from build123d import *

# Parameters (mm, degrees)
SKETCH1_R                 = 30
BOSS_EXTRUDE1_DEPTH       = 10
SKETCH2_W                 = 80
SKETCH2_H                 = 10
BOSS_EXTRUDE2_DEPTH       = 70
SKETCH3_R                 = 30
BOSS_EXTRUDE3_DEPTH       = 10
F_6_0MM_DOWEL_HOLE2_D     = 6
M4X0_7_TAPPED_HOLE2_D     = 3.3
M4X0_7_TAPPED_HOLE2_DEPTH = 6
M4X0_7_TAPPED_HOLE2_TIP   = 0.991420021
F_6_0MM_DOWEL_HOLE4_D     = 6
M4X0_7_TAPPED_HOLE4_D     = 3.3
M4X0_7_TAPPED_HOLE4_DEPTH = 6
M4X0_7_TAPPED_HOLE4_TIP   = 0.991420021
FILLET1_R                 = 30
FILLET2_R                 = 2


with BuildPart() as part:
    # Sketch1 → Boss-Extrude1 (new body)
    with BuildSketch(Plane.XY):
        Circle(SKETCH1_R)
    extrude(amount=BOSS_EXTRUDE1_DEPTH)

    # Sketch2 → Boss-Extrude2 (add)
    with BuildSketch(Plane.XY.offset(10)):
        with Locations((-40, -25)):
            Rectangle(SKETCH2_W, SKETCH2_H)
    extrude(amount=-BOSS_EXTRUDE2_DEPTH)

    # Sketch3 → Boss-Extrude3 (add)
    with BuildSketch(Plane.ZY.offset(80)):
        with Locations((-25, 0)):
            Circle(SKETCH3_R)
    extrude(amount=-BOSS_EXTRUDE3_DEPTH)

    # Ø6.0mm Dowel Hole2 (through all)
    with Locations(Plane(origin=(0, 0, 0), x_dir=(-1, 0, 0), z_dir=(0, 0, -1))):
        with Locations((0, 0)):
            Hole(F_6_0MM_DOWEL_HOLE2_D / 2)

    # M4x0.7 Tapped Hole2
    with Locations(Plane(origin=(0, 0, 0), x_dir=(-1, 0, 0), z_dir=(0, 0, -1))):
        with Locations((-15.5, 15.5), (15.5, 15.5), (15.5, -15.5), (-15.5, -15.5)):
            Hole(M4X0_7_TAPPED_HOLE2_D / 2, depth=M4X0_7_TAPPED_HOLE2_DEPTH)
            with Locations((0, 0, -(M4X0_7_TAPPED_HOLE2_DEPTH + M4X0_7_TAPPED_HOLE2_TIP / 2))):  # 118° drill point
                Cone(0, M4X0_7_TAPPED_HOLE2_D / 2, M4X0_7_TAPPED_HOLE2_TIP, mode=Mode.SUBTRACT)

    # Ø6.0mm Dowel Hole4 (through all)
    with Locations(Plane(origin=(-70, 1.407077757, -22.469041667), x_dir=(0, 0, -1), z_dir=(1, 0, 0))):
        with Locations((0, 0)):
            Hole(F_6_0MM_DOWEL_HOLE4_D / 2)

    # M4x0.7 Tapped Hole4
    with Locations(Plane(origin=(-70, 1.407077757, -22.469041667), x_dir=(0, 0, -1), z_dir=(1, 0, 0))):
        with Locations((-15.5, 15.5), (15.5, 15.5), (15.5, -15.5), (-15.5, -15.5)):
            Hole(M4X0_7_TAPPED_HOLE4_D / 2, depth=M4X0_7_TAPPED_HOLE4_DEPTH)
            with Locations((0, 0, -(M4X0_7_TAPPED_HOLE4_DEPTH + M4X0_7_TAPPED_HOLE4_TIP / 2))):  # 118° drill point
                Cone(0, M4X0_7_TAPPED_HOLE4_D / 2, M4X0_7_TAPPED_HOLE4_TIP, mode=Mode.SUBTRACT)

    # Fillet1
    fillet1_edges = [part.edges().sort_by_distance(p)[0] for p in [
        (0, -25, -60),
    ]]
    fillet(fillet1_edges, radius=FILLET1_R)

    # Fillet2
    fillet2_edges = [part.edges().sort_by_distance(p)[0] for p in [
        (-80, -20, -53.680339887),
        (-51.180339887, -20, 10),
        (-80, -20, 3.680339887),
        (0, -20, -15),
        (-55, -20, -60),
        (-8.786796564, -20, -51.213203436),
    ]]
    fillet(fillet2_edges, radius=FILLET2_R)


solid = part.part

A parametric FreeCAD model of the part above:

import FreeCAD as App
import Part
import Sketcher

V = App.Vector


def edges_at(feature, points):
    """Names of the edges that pass closest to the given points."""
    edges = feature.Shape.Edges
    near = lambda p: min(range(len(edges)), key=lambda i: edges[i].distToShape(Part.Vertex(*p))[0])
    return sorted({f"Edge{near(p) + 1}" for p in points})


def add_polygon(sketch, points):
    """Adds a closed chain of lines whose ends are joined by coincident constraints."""
    first, n = sketch.GeometryCount, len(points)
    for a, b in zip(points, points[1:] + points[:1]):
        sketch.addGeometry(Part.LineSegment(App.Vector(*a, 0), App.Vector(*b, 0)), False)
    for i in range(n):
        sketch.addConstraint(Sketcher.Constraint("Coincident", first + i, 2, first + (i + 1) % n, 1))

doc = App.newDocument("Part")
params = doc.addObject("Spreadsheet::Sheet", "Params")
for row, (alias, value) in enumerate([
    ("sketch1_diameter", "60 mm"),
    ("pad1_length", "10 mm"),
    ("sketch2_width", "80 mm"),
    ("sketch2_height", "10 mm"),
    ("pad2_length", "70 mm"),
    ("sketch3_diameter", "60 mm"),
    ("pad3_length", "10 mm"),
    ("sketch4_diameter", "6 mm"),
    ("hole_diameter", "6 mm"),
    ("sketch5_diameter", "3.3 mm"),
    ("hole2_diameter", "3.3 mm"),
    ("hole2_depth", "6 mm"),
    ("sketch6_diameter", "6 mm"),
    ("hole3_diameter", "6 mm"),
    ("sketch7_diameter", "3.3 mm"),
    ("hole4_diameter", "3.3 mm"),
    ("hole4_depth", "6 mm"),
    ("fillet_radius", "30 mm"),
    ("fillet2_radius", "2 mm"),
], start=1):
    params.set(f"A{row}", alias)
    params.set(f"B{row}", "=" + value)
    params.setAlias(f"B{row}", alias)

body = doc.addObject("PartDesign::Body", "Body")

sketch1 = doc.addObject("Sketcher::SketchObject", "Sketch")
body.addObject(sketch1)
sketch1.AttachmentSupport = (doc.XY_Plane, [""])
sketch1.MapMode = "FlatFace"
sketch1.addGeometry(Part.Circle(V(0, 0, 0), V(0, 0, 1), 30), False)
sketch1.addConstraint(Sketcher.Constraint("Coincident", 0, 3, -1, 1))
sketch1.addConstraint(Sketcher.Constraint("Diameter", 0, 60.0))
sketch1.setExpression("Constraints[1]", "Params.sketch1_diameter")
pad1 = doc.addObject("PartDesign::Pad", "Pad")
body.addObject(pad1)
pad1.Profile = sketch1
pad1.setExpression("Length", "Params.pad1_length")

sketch2 = doc.addObject("Sketcher::SketchObject", "Sketch001")
body.addObject(sketch2)
sketch2.AttachmentSupport = (doc.XY_Plane, [""])
sketch2.MapMode = "FlatFace"
sketch2.AttachmentOffset = App.Placement(V(0, 0, 10), App.Rotation())
add_polygon(sketch2, [(-80, -20), (-80, -30), (0, -30), (0, -20)])
sketch2.addConstraint(Sketcher.Constraint("Vertical", 0))
sketch2.addConstraint(Sketcher.Constraint("Horizontal", 1))
sketch2.addConstraint(Sketcher.Constraint("Vertical", 2))
sketch2.addConstraint(Sketcher.Constraint("Horizontal", 3))
sketch2.addConstraint(Sketcher.Constraint("PointOnObject", 1, 2, -2))
sketch2.addConstraint(Sketcher.Constraint("DistanceX", 1, 1, 1, 2, 80.0))
sketch2.addConstraint(Sketcher.Constraint("DistanceY", 0, 2, 0, 1, 10.0))
sketch2.addConstraint(Sketcher.Constraint("DistanceY", 0, 2, -1, 1, 30.0))
sketch2.setExpression("Constraints[9]", "Params.sketch2_width")
sketch2.setExpression("Constraints[10]", "Params.sketch2_height")
pad2 = doc.addObject("PartDesign::Pad", "Pad001")
body.addObject(pad2)
pad2.Profile = sketch2
pad2.setExpression("Length", "Params.pad2_length")
pad2.Reversed = True

sketch3 = doc.addObject("Sketcher::SketchObject", "Sketch002")
body.addObject(sketch3)
sketch3.AttachmentSupport = (doc.YZ_Plane, [""])
sketch3.MapMode = "FlatFace"
sketch3.AttachmentOffset = App.Placement(V(0, 0, -80), App.Rotation())
sketch3.addGeometry(Part.Circle(V(0, -25, 0), V(0, 0, 1), 30), False)
sketch3.addConstraint(Sketcher.Constraint("PointOnObject", 0, 3, -2))
sketch3.addConstraint(Sketcher.Constraint("Diameter", 0, 60.0))
sketch3.addConstraint(Sketcher.Constraint("DistanceY", 0, 3, -1, 1, 25.0))
sketch3.setExpression("Constraints[1]", "Params.sketch3_diameter")
pad3 = doc.addObject("PartDesign::Pad", "Pad002")
body.addObject(pad3)
pad3.Profile = sketch3
pad3.setExpression("Length", "Params.pad3_length")

sketch4 = doc.addObject("Sketcher::SketchObject", "Sketch003")
body.addObject(sketch4)
sketch4.AttachmentSupport = (doc.XY_Plane, [""])
sketch4.MapMode = "FlatFace"
sketch4.addGeometry(Part.Circle(V(0, 0, 0), V(0, 0, 1), 3), False)
sketch4.addConstraint(Sketcher.Constraint("Coincident", 0, 3, -1, 1))
sketch4.addConstraint(Sketcher.Constraint("Diameter", 0, 6.0))
sketch4.setExpression("Constraints[1]", "Params.sketch4_diameter")
doc.recompute()
hole = doc.addObject("PartDesign::Hole", "Hole")
body.addObject(hole)
hole.Profile = sketch4
hole.ThreadType = "None"
hole.setExpression("Diameter", "Params.hole_diameter")
hole.DepthType = "ThroughAll"
hole.Reversed = True

sketch5 = doc.addObject("Sketcher::SketchObject", "Sketch004")
body.addObject(sketch5)
sketch5.AttachmentSupport = (doc.XY_Plane, [""])
sketch5.MapMode = "FlatFace"
sketch5.addGeometry(Part.Circle(V(15.5, 15.5, 0), V(0, 0, 1), 1.6), False)
sketch5.addGeometry(Part.Circle(V(-15.5, 15.5, 0), V(0, 0, 1), 1.6), False)
sketch5.addGeometry(Part.Circle(V(-15.5, -15.5, 0), V(0, 0, 1), 1.6), False)
sketch5.addGeometry(Part.Circle(V(15.5, -15.5, 0), V(0, 0, 1), 1.6), False)
sketch5.addConstraint(Sketcher.Constraint("Equal", 0, 1))
sketch5.addConstraint(Sketcher.Constraint("Equal", 1, 2))
sketch5.addConstraint(Sketcher.Constraint("Equal", 2, 3))
sketch5.addConstraint(Sketcher.Constraint("Symmetric", 0, 3, 2, 3, -1, 1))
sketch5.addConstraint(Sketcher.Constraint("Symmetric", 1, 3, 3, 3, -1, 1))
sketch5.addConstraint(Sketcher.Constraint("Symmetric", 0, 3, 1, 3, -2))
sketch5.addConstraint(Sketcher.Constraint("Diameter", 0, 3.3))
sketch5.addConstraint(Sketcher.Constraint("DistanceX", 1, 3, 0, 3, 31.0))
sketch5.addConstraint(Sketcher.Constraint("DistanceY", 2, 3, 1, 3, 31.0))
sketch5.setExpression("Constraints[6]", "Params.sketch5_diameter")
doc.recompute()
hole2 = doc.addObject("PartDesign::Hole", "Hole001")
body.addObject(hole2)
hole2.Profile = sketch5
hole2.ThreadType = "None"
hole2.setExpression("Diameter", "Params.hole2_diameter")
hole2.DepthType = "Dimension"
hole2.setExpression("Depth", "Params.hole2_depth")
hole2.DrillPoint = "Angled"
hole2.DrillPointAngle = 118
hole2.Reversed = True

sketch6 = doc.addObject("Sketcher::SketchObject", "Sketch005")
body.addObject(sketch6)
sketch6.AttachmentSupport = (doc.YZ_Plane, [""])
sketch6.MapMode = "FlatFace"
sketch6.AttachmentOffset = App.Placement(V(0, 0, -70), App.Rotation())
sketch6.addGeometry(Part.Circle(V(1.4, -22.5, 0), V(0, 0, 1), 3), False)
sketch6.addConstraint(Sketcher.Constraint("Diameter", 0, 6.0))
sketch6.addConstraint(Sketcher.Constraint("DistanceY", 0, 3, -1, 1, 22.469042))
sketch6.addConstraint(Sketcher.Constraint("DistanceX", -1, 1, 0, 3, 1.407078))
sketch6.setExpression("Constraints[0]", "Params.sketch6_diameter")
doc.recompute()
hole3 = doc.addObject("PartDesign::Hole", "Hole002")
body.addObject(hole3)
hole3.Profile = sketch6
hole3.ThreadType = "None"
hole3.setExpression("Diameter", "Params.hole3_diameter")
hole3.DepthType = "ThroughAll"

sketch7 = doc.addObject("Sketcher::SketchObject", "Sketch006")
body.addObject(sketch7)
sketch7.AttachmentSupport = (doc.YZ_Plane, [""])
sketch7.MapMode = "FlatFace"
sketch7.AttachmentOffset = App.Placement(V(0, 0, -70), App.Rotation())
sketch7.addGeometry(Part.Circle(V(16.9, -7, 0), V(0, 0, 1), 1.6), False)
sketch7.addGeometry(Part.Circle(V(16.9, -38, 0), V(0, 0, 1), 1.6), False)
sketch7.addGeometry(Part.Circle(V(-14.1, -38, 0), V(0, 0, 1), 1.6), False)
sketch7.addGeometry(Part.Circle(V(-14.1, -7, 0), V(0, 0, 1), 1.6), False)
sketch7.addConstraint(Sketcher.Constraint("Equal", 0, 1))
sketch7.addConstraint(Sketcher.Constraint("Equal", 1, 2))
sketch7.addConstraint(Sketcher.Constraint("Equal", 2, 3))
sketch7.addConstraint(Sketcher.Constraint("Horizontal", 1, 3, 2, 3))
sketch7.addConstraint(Sketcher.Constraint("Horizontal", 0, 3, 3, 3))
sketch7.addConstraint(Sketcher.Constraint("Vertical", 0, 3, 1, 3))
sketch7.addConstraint(Sketcher.Constraint("Vertical", 2, 3, 3, 3))
sketch7.addConstraint(Sketcher.Constraint("Diameter", 0, 3.3))
sketch7.addConstraint(Sketcher.Constraint("DistanceY", 1, 3, 0, 3, 31.0))
sketch7.addConstraint(Sketcher.Constraint("DistanceX", 2, 3, 1, 3, 31.0))
sketch7.addConstraint(Sketcher.Constraint("DistanceY", 0, 3, -1, 1, 6.969042))
sketch7.addConstraint(Sketcher.Constraint("DistanceX", -1, 1, 0, 3, 16.907078))
sketch7.setExpression("Constraints[7]", "Params.sketch7_diameter")
doc.recompute()
hole4 = doc.addObject("PartDesign::Hole", "Hole003")
body.addObject(hole4)
hole4.Profile = sketch7
hole4.ThreadType = "None"
hole4.setExpression("Diameter", "Params.hole4_diameter")
hole4.DepthType = "Dimension"
hole4.setExpression("Depth", "Params.hole4_depth")
hole4.DrillPoint = "Angled"
hole4.DrillPointAngle = 118
doc.recompute()

fillet = doc.addObject("PartDesign::Fillet", "Fillet")
body.addObject(fillet)
fillet.Base = (hole4, edges_at(hole4, [(0, -25, -60)]))
fillet.setExpression("Radius", "Params.fillet_radius")
doc.recompute()

fillet2 = doc.addObject("PartDesign::Fillet", "Fillet001")
body.addObject(fillet2)
fillet2.Base = (fillet, edges_at(fillet, [
    (-80, -20, -53.68),
    (-51.18, -20, 10),
    (-80, -20, 3.68),
    (0, -20, -15),
    (-55, -20, -60),
    (-8.787, -20, -51.213),
]))
fillet2.setExpression("Radius", "Params.fillet2_radius")

doc.recompute()
